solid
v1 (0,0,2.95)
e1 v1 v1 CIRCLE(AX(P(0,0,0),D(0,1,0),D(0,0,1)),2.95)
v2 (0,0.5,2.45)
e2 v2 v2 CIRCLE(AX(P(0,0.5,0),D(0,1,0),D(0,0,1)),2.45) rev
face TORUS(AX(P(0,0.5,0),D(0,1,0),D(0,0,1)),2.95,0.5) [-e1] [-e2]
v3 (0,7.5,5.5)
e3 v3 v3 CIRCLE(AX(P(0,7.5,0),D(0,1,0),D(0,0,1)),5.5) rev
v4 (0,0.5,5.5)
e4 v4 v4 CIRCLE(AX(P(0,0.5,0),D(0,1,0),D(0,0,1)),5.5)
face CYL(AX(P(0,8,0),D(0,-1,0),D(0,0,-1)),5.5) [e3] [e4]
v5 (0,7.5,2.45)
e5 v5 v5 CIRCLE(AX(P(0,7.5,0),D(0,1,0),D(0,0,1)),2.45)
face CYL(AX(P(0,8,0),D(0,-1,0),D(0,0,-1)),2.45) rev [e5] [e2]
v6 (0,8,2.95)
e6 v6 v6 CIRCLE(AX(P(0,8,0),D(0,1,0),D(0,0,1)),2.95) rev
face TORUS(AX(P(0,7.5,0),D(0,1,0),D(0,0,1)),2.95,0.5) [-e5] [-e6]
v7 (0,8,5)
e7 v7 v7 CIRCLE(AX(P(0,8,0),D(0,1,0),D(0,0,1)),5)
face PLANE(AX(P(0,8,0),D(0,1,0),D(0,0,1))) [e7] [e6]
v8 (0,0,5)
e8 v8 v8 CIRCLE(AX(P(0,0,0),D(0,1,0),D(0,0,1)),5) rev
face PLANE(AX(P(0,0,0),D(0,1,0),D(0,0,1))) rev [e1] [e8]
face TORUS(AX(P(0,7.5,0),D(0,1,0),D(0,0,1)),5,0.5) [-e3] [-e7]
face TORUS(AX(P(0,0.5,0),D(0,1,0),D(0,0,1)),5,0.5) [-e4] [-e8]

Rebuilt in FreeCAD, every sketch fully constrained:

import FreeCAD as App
import Part
import Sketcher

V = App.Vector


def edges_at(feature, points):
    """Names of the edges that pass closest to the given points."""
    edges = feature.Shape.Edges
    near = lambda p: min(range(len(edges)), key=lambda i: edges[i].distToShape(Part.Vertex(*p))[0])
    return sorted({f"Edge{near(p) + 1}" for p in points})

doc = App.newDocument("Part")
params = doc.addObject("Spreadsheet::Sheet", "Params")
for row, (alias, value) in enumerate([
    ("sketch1_diameter", "11 mm"),
    ("sketch1_diameter2", "4.9 mm"),
    ("pad1_length", "8 mm"),
    ("fillet_radius", "0.5 mm"),
], start=1):
    params.set(f"A{row}", alias)
    params.set(f"B{row}", "=" + value)
    params.setAlias(f"B{row}", alias)

body = doc.addObject("PartDesign::Body", "Body")

# Sketch on XZ plane
sketch1 = body.newObject("Sketcher::SketchObject", "Sketch")
sketch1.AttachmentSupport = (doc.getObject("XZ_Plane"), [""])
sketch1.MapMode = "FlatFace"
sketch1.addGeometry([
    Part.Circle(V(0, 0, 0), V(0, 0, 1), 5.5),
    Part.Circle(V(0, 0, 0), V(0, 0, 1), 2.45),
], False)
sketch1.addConstraint([
    Sketcher.Constraint("Coincident", 0, 3, -1, 1),
    Sketcher.Constraint("Coincident", 1, 3, -1, 1),
    Sketcher.Constraint("Diameter", 0, 11.0),
    Sketcher.Constraint("Diameter", 1, 4.9),
])
sketch1.setExpression("Constraints[2]", "Params.sketch1_diameter")
sketch1.setExpression("Constraints[3]", "Params.sketch1_diameter2")
pad1 = body.newObject("PartDesign::Pad", "Pad")
pad1.Profile = sketch1
pad1.setExpression("Length", "Params.pad1_length")
pad1.Reversed = True
doc.recompute()

fillet = body.newObject("PartDesign::Fillet", "Fillet")
fillet.Base = (pad1, edges_at(pad1, [
    (0, 0, -5.5),
    (0, 8, -5.5),
    (0, 0, -2.45),
    (0, 8, -2.45),
]))
fillet.setExpression("Radius", "Params.fillet_radius")

doc.recompute()
